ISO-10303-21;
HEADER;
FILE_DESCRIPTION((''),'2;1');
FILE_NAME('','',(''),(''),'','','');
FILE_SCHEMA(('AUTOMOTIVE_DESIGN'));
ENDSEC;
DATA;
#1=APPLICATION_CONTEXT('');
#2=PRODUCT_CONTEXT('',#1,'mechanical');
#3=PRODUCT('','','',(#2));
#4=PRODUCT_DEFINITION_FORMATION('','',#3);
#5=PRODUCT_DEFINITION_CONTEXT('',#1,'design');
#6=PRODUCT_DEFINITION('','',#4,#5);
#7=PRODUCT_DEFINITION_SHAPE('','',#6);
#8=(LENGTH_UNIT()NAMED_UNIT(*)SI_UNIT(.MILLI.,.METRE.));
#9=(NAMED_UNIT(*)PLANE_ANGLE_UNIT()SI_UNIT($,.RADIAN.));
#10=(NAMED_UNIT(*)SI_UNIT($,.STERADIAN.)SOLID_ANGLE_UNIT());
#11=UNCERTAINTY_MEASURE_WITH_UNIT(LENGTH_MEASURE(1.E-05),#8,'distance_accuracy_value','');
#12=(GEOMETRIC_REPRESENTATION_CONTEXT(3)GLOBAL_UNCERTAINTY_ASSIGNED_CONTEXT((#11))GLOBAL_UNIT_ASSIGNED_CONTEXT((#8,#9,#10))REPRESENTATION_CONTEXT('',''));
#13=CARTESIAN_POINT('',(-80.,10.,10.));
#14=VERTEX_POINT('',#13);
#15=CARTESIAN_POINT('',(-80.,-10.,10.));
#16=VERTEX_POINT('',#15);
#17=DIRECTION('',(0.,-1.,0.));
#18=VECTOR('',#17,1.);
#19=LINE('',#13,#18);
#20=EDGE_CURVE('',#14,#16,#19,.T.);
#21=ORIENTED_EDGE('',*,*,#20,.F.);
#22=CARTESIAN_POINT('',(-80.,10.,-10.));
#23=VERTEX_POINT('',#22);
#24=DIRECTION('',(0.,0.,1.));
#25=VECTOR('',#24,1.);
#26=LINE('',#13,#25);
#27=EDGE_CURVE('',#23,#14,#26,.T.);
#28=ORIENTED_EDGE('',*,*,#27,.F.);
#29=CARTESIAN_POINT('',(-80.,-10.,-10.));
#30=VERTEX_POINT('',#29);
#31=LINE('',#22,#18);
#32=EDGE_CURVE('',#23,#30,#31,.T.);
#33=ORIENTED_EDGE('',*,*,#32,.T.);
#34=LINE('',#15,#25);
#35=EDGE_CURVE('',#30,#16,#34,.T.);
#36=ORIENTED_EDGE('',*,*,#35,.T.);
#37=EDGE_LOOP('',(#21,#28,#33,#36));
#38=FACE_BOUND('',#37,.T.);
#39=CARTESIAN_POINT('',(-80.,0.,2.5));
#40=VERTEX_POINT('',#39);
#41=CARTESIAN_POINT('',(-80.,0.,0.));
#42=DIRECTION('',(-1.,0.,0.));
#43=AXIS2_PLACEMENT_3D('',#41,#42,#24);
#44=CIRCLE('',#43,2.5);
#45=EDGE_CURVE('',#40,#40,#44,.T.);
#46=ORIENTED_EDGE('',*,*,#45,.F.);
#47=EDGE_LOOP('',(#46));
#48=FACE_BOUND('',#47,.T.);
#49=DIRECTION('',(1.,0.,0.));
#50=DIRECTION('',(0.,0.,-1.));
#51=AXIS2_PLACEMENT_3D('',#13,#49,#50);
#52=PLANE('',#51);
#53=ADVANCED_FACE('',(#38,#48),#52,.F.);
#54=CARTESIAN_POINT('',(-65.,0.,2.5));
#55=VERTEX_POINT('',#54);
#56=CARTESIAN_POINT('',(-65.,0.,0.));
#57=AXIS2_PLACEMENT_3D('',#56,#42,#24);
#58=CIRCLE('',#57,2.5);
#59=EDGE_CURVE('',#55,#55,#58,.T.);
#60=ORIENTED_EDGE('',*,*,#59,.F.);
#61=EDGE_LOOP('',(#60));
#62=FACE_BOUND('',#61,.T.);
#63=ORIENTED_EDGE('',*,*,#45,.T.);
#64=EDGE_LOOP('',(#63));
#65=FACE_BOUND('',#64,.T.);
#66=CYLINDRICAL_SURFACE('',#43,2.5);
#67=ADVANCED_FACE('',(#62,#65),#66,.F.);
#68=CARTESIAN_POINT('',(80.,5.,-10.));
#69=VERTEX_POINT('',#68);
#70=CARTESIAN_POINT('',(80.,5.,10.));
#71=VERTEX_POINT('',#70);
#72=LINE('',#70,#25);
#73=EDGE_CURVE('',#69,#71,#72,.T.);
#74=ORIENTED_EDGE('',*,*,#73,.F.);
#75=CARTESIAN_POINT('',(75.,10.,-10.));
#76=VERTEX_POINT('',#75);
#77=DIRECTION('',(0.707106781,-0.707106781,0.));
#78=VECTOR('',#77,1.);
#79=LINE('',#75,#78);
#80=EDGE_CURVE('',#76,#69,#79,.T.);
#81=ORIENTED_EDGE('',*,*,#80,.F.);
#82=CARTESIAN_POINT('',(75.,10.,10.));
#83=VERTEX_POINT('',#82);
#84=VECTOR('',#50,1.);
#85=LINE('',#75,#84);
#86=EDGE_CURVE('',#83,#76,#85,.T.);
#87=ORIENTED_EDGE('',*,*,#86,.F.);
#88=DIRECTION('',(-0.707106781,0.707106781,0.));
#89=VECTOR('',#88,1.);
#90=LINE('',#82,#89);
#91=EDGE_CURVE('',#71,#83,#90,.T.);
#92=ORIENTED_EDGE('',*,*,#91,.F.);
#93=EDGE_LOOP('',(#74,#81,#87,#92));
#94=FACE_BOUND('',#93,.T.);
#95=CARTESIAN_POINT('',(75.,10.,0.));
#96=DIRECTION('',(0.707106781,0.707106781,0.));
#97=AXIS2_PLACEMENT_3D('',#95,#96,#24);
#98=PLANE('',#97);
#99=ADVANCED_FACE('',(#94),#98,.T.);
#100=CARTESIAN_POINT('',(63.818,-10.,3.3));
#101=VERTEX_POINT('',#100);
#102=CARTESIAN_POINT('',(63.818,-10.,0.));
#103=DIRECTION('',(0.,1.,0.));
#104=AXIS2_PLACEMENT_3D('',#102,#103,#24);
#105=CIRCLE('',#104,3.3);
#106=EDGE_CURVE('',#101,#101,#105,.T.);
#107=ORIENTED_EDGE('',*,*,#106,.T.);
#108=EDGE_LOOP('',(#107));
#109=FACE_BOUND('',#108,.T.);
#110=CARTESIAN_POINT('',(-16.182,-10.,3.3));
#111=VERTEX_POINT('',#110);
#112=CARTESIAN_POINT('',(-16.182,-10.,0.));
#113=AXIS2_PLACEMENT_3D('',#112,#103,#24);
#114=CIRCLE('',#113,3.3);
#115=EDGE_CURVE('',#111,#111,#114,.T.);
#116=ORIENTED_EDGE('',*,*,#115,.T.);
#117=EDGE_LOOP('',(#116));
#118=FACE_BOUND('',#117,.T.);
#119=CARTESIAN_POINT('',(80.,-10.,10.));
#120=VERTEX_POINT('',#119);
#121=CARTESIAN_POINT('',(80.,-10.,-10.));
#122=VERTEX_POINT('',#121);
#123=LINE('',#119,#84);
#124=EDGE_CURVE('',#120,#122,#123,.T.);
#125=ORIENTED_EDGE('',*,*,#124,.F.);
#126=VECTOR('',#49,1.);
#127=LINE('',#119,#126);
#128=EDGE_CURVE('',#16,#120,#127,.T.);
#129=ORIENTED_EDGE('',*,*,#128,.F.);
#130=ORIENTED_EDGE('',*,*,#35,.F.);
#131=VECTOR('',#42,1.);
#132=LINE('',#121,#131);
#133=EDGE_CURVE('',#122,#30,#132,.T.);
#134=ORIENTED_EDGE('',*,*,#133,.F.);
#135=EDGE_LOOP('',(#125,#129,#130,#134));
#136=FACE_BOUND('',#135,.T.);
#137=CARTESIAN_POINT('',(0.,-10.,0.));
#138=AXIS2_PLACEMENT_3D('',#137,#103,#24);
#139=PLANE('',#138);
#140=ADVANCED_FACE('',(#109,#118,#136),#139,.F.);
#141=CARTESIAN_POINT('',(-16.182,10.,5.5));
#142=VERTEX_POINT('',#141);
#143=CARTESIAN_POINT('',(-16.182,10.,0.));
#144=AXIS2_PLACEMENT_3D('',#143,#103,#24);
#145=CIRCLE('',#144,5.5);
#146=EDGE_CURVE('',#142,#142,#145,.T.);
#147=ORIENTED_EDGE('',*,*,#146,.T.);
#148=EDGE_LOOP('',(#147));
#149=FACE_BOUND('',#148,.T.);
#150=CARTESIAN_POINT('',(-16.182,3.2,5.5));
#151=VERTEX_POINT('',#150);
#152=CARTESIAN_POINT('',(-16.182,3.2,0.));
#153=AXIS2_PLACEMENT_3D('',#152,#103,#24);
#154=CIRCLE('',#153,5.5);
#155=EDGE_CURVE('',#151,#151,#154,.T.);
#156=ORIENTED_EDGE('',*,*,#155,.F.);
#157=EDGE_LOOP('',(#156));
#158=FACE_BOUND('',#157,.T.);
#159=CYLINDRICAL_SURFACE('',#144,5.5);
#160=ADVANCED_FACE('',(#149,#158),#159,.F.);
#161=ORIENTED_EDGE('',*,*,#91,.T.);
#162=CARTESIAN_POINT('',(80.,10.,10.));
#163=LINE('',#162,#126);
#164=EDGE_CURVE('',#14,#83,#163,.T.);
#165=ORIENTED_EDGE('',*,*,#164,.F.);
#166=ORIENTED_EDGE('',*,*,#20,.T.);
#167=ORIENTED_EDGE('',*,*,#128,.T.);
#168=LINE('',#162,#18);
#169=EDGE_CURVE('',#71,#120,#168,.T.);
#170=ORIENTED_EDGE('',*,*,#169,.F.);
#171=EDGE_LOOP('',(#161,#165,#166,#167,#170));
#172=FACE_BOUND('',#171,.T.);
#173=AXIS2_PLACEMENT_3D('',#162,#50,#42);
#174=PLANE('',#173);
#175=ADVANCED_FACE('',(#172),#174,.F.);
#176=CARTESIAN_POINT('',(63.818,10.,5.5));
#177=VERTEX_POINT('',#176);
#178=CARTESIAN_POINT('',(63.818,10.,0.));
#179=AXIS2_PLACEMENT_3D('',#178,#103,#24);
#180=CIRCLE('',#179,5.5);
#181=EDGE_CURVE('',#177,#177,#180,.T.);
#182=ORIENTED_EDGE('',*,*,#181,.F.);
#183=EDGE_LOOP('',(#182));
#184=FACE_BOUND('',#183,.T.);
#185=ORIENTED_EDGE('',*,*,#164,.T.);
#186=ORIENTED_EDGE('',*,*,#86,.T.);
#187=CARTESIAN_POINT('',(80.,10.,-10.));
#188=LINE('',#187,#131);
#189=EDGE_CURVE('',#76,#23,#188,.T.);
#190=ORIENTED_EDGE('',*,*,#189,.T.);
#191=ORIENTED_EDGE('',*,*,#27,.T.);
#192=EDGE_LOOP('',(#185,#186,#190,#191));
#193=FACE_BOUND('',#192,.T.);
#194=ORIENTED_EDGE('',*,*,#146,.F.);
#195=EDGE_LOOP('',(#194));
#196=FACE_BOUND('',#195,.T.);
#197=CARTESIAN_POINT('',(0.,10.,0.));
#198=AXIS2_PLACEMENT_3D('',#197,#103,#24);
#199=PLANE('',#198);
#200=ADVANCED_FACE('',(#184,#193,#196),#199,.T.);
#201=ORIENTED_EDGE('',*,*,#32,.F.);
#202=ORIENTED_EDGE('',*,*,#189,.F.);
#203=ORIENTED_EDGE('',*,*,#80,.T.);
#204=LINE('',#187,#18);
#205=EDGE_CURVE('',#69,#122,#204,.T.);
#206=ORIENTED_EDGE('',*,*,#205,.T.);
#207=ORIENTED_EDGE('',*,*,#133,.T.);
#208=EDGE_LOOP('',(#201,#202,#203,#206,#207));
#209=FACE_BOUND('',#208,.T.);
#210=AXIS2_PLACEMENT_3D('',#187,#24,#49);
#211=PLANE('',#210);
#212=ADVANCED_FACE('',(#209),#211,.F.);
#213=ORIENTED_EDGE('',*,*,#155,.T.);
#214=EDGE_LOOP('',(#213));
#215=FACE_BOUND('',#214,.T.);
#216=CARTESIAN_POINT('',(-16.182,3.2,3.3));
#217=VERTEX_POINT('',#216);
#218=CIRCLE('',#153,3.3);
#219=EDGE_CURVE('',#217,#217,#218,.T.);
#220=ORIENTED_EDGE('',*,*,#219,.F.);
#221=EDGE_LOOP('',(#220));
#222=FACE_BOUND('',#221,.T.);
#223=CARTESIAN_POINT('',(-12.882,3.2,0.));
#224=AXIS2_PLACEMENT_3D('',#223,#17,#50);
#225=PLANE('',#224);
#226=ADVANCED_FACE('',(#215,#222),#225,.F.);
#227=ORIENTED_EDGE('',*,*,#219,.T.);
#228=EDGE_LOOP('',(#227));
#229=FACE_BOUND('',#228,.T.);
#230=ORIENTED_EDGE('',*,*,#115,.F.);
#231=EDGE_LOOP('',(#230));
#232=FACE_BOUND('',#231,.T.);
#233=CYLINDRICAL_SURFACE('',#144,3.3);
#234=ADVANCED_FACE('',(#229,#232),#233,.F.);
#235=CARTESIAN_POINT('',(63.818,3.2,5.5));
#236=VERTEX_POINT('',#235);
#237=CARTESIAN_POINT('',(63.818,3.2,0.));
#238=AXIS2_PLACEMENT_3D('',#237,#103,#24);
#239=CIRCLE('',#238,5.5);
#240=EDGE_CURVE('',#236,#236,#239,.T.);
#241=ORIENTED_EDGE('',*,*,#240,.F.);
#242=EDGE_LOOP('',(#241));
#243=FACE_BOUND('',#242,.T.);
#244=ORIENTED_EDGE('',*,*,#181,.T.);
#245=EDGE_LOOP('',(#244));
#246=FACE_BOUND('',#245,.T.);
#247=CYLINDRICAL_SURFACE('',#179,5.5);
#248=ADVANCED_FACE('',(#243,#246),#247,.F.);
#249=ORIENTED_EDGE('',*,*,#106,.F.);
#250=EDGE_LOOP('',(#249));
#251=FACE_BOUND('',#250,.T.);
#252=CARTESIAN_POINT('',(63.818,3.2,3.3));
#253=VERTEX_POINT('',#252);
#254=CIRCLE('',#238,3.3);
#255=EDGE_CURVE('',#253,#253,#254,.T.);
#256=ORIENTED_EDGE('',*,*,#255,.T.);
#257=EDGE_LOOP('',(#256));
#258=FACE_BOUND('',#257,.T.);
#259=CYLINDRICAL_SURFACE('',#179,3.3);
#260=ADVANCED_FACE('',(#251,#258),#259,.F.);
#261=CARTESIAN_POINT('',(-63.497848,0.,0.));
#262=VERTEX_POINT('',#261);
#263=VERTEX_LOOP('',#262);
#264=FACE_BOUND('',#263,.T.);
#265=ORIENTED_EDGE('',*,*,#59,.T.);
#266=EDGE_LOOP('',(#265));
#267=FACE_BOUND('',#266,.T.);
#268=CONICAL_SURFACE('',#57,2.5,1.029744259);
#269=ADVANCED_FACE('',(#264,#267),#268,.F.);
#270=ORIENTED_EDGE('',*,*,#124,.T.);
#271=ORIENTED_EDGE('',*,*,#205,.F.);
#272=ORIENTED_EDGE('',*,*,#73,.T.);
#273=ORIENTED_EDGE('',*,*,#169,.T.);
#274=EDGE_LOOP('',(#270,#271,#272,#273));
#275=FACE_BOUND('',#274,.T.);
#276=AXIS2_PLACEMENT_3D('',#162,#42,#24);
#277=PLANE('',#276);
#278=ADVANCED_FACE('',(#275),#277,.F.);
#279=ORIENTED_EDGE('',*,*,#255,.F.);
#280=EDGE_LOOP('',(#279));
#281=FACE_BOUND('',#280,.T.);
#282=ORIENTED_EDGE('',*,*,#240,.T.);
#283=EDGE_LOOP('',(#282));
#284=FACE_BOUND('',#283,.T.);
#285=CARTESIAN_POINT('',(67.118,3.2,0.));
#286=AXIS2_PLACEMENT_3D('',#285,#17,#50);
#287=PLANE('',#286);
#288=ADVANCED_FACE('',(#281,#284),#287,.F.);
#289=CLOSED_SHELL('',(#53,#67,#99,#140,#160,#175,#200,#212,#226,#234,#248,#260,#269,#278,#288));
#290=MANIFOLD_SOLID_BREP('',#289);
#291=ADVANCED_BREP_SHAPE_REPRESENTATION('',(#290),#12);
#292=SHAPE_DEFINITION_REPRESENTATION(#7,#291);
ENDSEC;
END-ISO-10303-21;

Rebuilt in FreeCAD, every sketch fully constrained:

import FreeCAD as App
import Part
import Sketcher
Q = App.Units.Quantity


def edges_at(feature, points):
    """Names of the edges that pass closest to the given points."""
    edges = feature.Shape.Edges
    near = lambda p: min(range(len(edges)), key=lambda i: edges[i].distToShape(Part.Vertex(*p))[0])
    return sorted({f"Edge{near(p) + 1}" for p in points})

doc = App.newDocument("Part")
params = doc.addObject("Spreadsheet::Sheet", "Params")
for row, (alias, value) in enumerate([
    ("sketch1_width", "160 mm"),
    ("sketch1_height", "20 mm"),
    ("pad1_length", "20 mm"),
    ("sketch2_diameter", "6.6 mm"),
    ("hole_diameter", "6.6 mm"),
    ("hole_cbore_diameter", "11 mm"),
    ("hole_cbore_depth", "6.8 mm"),
    ("sketch3_diameter", "5 mm"),
    ("hole2_diameter", "5 mm"),
    ("hole2_depth", "15 mm"),
    ("chamfer_size", "5 mm"),
], start=1):
    params.set(f"A{row}", alias)
    params.set(f"B{row}", "=" + value)
    params.setAlias(f"B{row}", alias)

body = doc.addObject("PartDesign::Body", "Body")

# Sketch on XZ plane
sketch1 = body.newObject("Sketcher::SketchObject", "Sketch")
sketch1.AttachmentSupport = (doc.getObject("XZ_Plane"), [""])
sketch1.MapMode = "FlatFace"
sketch1.addGeometry([
    Part.LineSegment(App.Vector(-80, -10, 0), App.Vector(-80, 10, 0)),
    Part.LineSegment(App.Vector(-80, 10, 0), App.Vector(80, 10, 0)),
    Part.LineSegment(App.Vector(80, 10, 0), App.Vector(80, -10, 0)),
    Part.LineSegment(App.Vector(80, -10, 0), App.Vector(-80, -10, 0)),
], False)
sketch1.addConstraint([
    Sketcher.Constraint("Coincident", 0, 2, 1, 1),
    Sketcher.Constraint("Coincident", 1, 2, 2, 1),
    Sketcher.Constraint("Coincident", 2, 2, 3, 1),
    Sketcher.Constraint("Coincident", 3, 2, 0, 1),
    Sketcher.Constraint("Vertical", 0),
    Sketcher.Constraint("Horizontal", 1),
    Sketcher.Constraint("Vertical", 2),
    Sketcher.Constraint("Horizontal", 3),
    Sketcher.Constraint("Symmetric", 0, 2, 2, 2, -1, 1),
    Sketcher.Constraint("DistanceX", 1, 1, 1, 2, Q("160 mm")),
    Sketcher.Constraint("DistanceY", 0, 1, 0, 2, Q("20 mm")),
])
sketch1.setExpression("Constraints[9]", "Params.sketch1_width")
sketch1.setExpression("Constraints[10]", "Params.sketch1_height")
pad1 = body.newObject("PartDesign::Pad", "Pad")
pad1.Profile = sketch1
pad1.setExpression("Length", "Params.pad1_length")
pad1.Midplane = True

# Sketch on XZ plane
sketch2 = body.newObject("Sketcher::SketchObject", "Sketch001")
sketch2.AttachmentSupport = (doc.getObject("XZ_Plane"), [""])
sketch2.MapMode = "FlatFace"
sketch2.AttachmentOffset = App.Placement(App.Vector(0, 0, -10), App.Rotation())
sketch2.addGeometry([
    Part.Circle(App.Vector(-16.2, 0, 0), App.Vector(0, 0, 1), 3.3),
    Part.Circle(App.Vector(63.8, 0, 0), App.Vector(0, 0, 1), 3.3),
], False)
sketch2.addConstraint([
    Sketcher.Constraint("Equal", 0, 1),
    Sketcher.Constraint("PointOnObject", 0, 3, -1),
    Sketcher.Constraint("PointOnObject", 1, 3, -1),
    Sketcher.Constraint("Diameter", 0, Q("6.6 mm")),
    Sketcher.Constraint("DistanceX", 0, 3, 1, 3, Q("80 mm")),
    Sketcher.Constraint("DistanceX", 0, 3, -1, 1, Q("16.182 mm")),
])
sketch2.setExpression("Constraints[3]", "Params.sketch2_diameter")
doc.recompute()
hole = body.newObject("PartDesign::Hole", "Hole")
hole.Profile = sketch2
hole.ThreadType = "None"
hole.setExpression("Diameter", "Params.hole_diameter")
hole.DepthType = "ThroughAll"
hole.HoleCutType = "Counterbore"
hole.setExpression("HoleCutDiameter", "Params.hole_cbore_diameter")
hole.setExpression("HoleCutDepth", "Params.hole_cbore_depth")
hole.Reversed = True

# Sketch on YZ plane
sketch3 = body.newObject("Sketcher::SketchObject", "Sketch002")
sketch3.AttachmentSupport = (doc.getObject("YZ_Plane"), [""])
sketch3.MapMode = "FlatFace"
sketch3.AttachmentOffset = App.Placement(App.Vector(0, 0, -80), App.Rotation())
sketch3.addGeometry(Part.Circle(App.Vector(0, 0, 0), App.Vector(0, 0, 1), 2.5), False)
sketch3.addConstraint([
    Sketcher.Constraint("Coincident", 0, 3, -1, 1),
    Sketcher.Constraint("Diameter", 0, Q("5 mm")),
])
sketch3.setExpression("Constraints[1]", "Params.sketch3_diameter")
doc.recompute()
hole2 = body.newObject("PartDesign::Hole", "Hole001")
hole2.Profile = sketch3
hole2.ThreadType = "None"
hole2.setExpression("Diameter", "Params.hole2_diameter")
hole2.DepthType = "Dimension"
hole2.setExpression("Depth", "Params.hole2_depth")
hole2.DrillPoint = "Angled"
hole2.DrillPointAngle = 118
hole2.Reversed = True
doc.recompute()

chamfer = body.newObject("PartDesign::Chamfer", "Chamfer")
chamfer.Base = (hole2, edges_at(hole2, [(80, 10, 0)]))
chamfer.setExpression("Size", "Params.chamfer_size")

doc.recompute()
